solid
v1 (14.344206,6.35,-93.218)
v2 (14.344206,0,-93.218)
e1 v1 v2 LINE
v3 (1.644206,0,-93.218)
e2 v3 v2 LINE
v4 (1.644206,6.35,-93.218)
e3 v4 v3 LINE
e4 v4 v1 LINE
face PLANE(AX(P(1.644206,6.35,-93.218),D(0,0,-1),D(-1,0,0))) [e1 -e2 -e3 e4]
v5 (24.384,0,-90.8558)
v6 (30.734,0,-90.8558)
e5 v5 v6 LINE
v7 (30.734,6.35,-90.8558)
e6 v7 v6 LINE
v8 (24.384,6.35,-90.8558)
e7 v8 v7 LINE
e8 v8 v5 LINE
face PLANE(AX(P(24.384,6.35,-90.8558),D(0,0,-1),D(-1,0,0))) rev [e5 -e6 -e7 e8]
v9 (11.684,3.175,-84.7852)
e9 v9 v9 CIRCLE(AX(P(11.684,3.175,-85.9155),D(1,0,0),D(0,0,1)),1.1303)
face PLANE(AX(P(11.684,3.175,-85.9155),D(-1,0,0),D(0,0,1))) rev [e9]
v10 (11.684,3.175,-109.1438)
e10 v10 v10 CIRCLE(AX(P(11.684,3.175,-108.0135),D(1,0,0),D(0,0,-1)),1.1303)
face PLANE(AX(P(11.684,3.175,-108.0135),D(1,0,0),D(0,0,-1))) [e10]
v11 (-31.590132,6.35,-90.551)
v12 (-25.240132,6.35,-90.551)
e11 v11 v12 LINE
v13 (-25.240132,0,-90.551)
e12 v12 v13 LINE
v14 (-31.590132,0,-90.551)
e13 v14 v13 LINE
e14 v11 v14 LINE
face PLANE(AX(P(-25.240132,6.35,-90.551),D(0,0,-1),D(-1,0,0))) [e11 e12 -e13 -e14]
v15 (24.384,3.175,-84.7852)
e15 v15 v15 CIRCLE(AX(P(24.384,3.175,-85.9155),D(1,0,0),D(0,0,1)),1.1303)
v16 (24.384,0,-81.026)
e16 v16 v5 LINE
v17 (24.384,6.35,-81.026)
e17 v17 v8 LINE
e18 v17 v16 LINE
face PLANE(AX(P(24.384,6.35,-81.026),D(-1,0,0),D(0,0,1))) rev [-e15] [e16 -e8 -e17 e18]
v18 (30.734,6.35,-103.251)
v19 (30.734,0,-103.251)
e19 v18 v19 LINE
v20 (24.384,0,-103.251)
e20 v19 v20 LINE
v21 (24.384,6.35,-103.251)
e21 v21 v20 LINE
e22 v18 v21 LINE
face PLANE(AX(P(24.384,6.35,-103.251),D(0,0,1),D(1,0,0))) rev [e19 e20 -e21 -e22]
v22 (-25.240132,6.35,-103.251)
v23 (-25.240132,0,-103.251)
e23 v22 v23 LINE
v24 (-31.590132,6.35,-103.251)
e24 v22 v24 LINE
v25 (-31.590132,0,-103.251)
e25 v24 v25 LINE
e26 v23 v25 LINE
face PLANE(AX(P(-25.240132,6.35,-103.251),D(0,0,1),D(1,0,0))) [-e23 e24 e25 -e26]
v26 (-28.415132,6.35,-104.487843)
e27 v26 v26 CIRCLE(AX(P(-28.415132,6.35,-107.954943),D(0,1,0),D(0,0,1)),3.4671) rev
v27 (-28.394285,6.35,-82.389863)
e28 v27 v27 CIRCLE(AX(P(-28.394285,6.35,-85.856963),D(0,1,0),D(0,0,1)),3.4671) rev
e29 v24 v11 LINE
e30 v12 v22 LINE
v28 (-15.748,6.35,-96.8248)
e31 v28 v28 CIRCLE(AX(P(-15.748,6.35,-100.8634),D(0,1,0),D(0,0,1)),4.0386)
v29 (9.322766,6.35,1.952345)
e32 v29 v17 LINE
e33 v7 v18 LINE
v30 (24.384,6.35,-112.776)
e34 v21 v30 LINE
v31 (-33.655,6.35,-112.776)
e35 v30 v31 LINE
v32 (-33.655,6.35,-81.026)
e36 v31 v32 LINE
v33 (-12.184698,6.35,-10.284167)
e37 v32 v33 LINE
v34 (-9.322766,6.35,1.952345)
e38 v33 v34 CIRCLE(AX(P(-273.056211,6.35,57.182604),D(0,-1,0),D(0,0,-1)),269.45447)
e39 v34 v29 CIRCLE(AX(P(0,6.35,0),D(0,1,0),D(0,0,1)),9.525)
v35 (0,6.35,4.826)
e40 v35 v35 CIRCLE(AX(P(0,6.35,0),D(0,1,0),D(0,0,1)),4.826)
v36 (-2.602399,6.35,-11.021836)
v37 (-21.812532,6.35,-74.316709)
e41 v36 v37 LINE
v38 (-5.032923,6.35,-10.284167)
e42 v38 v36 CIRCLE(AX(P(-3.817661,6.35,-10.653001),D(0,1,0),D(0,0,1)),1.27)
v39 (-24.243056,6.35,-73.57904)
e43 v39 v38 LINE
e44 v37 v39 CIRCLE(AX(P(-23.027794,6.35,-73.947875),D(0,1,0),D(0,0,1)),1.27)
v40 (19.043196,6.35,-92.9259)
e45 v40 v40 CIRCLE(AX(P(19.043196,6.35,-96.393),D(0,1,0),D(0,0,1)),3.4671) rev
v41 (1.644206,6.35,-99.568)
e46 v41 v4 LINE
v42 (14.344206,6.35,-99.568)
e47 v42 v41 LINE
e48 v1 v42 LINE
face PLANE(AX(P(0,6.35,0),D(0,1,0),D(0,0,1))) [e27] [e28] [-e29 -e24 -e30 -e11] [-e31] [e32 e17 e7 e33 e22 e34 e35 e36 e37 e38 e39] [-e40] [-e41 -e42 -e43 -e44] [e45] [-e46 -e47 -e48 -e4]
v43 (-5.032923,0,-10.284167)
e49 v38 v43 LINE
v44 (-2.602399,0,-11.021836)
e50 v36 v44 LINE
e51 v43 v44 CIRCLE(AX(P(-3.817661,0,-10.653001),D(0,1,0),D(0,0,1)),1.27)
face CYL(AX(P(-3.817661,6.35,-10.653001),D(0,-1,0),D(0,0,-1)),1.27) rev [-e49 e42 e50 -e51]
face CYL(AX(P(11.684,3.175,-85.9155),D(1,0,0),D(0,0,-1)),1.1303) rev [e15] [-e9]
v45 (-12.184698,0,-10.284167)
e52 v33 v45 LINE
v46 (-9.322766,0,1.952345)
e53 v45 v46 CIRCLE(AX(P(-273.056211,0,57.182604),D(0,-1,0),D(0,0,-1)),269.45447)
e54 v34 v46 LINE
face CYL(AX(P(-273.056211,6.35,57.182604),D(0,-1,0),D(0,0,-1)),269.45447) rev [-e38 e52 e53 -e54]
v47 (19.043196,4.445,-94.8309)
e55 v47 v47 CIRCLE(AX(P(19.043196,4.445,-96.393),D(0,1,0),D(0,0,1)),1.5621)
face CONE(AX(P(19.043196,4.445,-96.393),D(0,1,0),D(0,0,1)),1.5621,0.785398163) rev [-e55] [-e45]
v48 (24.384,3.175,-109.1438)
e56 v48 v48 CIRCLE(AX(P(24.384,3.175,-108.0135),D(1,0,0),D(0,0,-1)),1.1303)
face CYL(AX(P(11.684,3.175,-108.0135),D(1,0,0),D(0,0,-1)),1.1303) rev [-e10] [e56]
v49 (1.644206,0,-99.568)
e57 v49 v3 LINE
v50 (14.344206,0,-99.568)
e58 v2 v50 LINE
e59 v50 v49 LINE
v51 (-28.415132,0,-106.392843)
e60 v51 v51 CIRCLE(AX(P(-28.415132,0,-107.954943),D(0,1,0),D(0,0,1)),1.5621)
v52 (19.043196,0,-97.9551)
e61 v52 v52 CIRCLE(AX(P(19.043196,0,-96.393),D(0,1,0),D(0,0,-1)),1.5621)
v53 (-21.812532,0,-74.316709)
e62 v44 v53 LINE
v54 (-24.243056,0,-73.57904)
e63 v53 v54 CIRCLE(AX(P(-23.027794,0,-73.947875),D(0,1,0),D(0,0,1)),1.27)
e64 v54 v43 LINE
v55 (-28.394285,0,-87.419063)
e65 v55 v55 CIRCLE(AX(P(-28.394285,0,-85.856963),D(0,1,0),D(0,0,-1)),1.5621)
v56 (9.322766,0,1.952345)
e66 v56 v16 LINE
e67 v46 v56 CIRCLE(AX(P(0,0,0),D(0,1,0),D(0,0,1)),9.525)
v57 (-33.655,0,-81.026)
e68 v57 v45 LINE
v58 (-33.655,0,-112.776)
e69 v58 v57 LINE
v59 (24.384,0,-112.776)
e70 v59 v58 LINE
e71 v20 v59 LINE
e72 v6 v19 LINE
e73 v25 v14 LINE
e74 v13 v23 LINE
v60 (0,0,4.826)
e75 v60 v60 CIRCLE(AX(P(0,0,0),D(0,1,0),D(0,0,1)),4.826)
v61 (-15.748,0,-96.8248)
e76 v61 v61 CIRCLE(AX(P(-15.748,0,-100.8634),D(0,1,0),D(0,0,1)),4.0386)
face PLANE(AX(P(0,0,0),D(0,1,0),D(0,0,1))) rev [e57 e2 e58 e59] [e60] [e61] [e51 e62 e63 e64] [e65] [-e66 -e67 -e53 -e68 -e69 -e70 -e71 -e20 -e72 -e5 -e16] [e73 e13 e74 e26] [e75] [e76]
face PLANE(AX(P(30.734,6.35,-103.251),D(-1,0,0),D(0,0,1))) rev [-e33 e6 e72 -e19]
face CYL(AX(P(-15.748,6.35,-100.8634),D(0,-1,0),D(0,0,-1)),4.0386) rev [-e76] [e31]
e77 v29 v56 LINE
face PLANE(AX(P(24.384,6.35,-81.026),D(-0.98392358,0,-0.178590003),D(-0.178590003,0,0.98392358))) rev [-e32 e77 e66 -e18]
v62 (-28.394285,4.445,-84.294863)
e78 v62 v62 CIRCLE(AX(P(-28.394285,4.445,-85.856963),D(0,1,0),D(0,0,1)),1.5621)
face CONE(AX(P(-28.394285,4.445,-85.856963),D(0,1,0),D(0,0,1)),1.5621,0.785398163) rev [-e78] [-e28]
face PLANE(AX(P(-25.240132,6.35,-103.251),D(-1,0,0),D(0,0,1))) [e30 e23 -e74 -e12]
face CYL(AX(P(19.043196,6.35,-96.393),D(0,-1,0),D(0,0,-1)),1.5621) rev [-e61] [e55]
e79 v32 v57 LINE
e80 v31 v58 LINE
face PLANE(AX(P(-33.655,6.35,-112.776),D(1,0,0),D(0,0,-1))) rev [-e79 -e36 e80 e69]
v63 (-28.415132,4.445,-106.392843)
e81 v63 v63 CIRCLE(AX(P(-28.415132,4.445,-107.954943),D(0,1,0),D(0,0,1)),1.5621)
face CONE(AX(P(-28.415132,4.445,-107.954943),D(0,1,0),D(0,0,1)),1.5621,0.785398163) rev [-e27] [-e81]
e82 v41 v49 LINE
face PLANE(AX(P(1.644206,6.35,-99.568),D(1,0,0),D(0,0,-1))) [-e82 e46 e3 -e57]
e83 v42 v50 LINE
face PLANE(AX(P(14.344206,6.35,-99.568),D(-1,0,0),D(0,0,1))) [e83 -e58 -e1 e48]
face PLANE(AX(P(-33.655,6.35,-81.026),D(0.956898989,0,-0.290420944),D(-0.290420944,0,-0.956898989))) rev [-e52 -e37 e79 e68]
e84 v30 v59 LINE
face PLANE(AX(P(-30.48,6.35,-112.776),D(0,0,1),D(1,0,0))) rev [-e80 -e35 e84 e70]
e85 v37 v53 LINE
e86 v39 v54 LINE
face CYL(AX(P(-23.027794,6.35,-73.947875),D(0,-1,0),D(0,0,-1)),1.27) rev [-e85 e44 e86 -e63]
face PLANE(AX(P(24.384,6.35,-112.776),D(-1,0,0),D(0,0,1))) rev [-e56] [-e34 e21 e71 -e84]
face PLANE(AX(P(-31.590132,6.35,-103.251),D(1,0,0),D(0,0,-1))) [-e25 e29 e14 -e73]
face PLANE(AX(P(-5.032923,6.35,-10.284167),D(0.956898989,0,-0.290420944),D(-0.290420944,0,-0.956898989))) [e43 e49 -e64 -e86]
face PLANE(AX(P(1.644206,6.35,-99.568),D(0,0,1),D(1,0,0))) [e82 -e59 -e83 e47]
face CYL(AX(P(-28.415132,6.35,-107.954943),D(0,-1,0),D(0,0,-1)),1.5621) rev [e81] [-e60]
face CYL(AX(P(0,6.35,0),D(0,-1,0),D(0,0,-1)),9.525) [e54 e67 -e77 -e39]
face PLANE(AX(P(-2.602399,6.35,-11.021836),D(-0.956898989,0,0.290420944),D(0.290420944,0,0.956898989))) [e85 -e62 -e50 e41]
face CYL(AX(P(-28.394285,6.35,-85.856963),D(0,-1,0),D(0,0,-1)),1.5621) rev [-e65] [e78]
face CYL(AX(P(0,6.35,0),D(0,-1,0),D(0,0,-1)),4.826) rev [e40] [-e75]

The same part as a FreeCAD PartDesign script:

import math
import FreeCAD as App
import Part
import Sketcher
Q = App.Units.Quantity


def edges_at(feature, points):
    """Names of the edges that pass closest to the given points."""
    edges = feature.Shape.Edges
    near = lambda p: min(range(len(edges)), key=lambda i: edges[i].distToShape(Part.Vertex(*p))[0])
    return sorted({f"Edge{near(p) + 1}" for p in points})

doc = App.newDocument("Part")
body = doc.addObject("PartDesign::Body", "Body")

# Sketch on XZ plane
sketch1 = doc.addObject("Sketcher::SketchObject", "Sketch")
body.addObject(sketch1)
sketch1.AttachmentSupport = (doc.XZ_Plane, [""])
sketch1.MapMode = "FlatFace"
sketch1.addGeometry([
    Part.LineSegment(App.Vector(9.3, 2, 0), App.Vector(24.4, -81, 0)),  # 0
    Part.LineSegment(App.Vector(24.4, -81, 0), App.Vector(24.4, -90.9, 0)),  # 1
    Part.LineSegment(App.Vector(24.4, -90.9, 0), App.Vector(30.7, -90.9, 0)),  # 2
    Part.LineSegment(App.Vector(30.7, -90.9, 0), App.Vector(30.7, -103.3, 0)),  # 3
    Part.LineSegment(App.Vector(30.7, -103.3, 0), App.Vector(24.4, -103.3, 0)),  # 4
    Part.LineSegment(App.Vector(24.4, -103.3, 0), App.Vector(24.4, -112.8, 0)),  # 5
    Part.LineSegment(App.Vector(24.4, -112.8, 0), App.Vector(-33.7, -112.8, 0)),  # 6
    Part.LineSegment(App.Vector(-33.7, -112.8, 0), App.Vector(-33.7, -81, 0)),  # 7
    Part.LineSegment(App.Vector(-33.7, -81, 0), App.Vector(-12.2, -10.3, 0)),  # 8
    Part.ArcOfCircle(Part.Circle(App.Vector(-273.1, 57.2, 0), App.Vector(0, 0, 1), 269.5), math.radians(-14.5), math.radians(-11.83)),  # 9
    Part.ArcOfCircle(Part.Circle(App.Vector(0, 0, 0), App.Vector(0, 0, 1), 9.5), math.radians(12), math.radians(168)),  # 10
    Part.Circle(App.Vector(0, 0, 0), App.Vector(0, 0, 1), 4.8),  # 11
    Part.LineSegment(App.Vector(-5, -10.3, 0), App.Vector(-24.2, -73.6, 0)),  # 12
    Part.ArcOfCircle(Part.Circle(App.Vector(-23, -73.9, 0), App.Vector(0, 0, 1), 1.3), math.radians(163), math.radians(343)),  # 13
    Part.LineSegment(App.Vector(-21.8, -74.3, 0), App.Vector(-2.6, -11, 0)),  # 14
    Part.ArcOfCircle(Part.Circle(App.Vector(-3.8, -10.7, 0), App.Vector(0, 0, 1), 1.3), math.radians(-17), math.radians(163)),  # 15
    Part.Circle(App.Vector(19, -96.4, 0), App.Vector(0, 0, 1), 1.6),  # 16
    Part.LineSegment(App.Vector(1.6, -93.2, 0), App.Vector(1.6, -99.6, 0)),  # 17
    Part.LineSegment(App.Vector(1.6, -99.6, 0), App.Vector(14.3, -99.6, 0)),  # 18
    Part.LineSegment(App.Vector(14.3, -99.6, 0), App.Vector(14.3, -93.2, 0)),  # 19
    Part.LineSegment(App.Vector(14.3, -93.2, 0), App.Vector(1.6, -93.2, 0)),  # 20
    Part.Circle(App.Vector(-15.7, -100.9, 0), App.Vector(0, 0, 1), 4),  # 21
    Part.Circle(App.Vector(-28.4, -85.9, 0), App.Vector(0, 0, 1), 1.6),  # 22
    Part.LineSegment(App.Vector(-31.6, -90.6, 0), App.Vector(-31.6, -103.3, 0)),  # 23
    Part.LineSegment(App.Vector(-31.6, -103.3, 0), App.Vector(-25.2, -103.3, 0)),  # 24
    Part.LineSegment(App.Vector(-25.2, -103.3, 0), App.Vector(-25.2, -90.6, 0)),  # 25
    Part.LineSegment(App.Vector(-25.2, -90.6, 0), App.Vector(-31.6, -90.6, 0)),  # 26
    Part.Circle(App.Vector(-28.4, -108, 0), App.Vector(0, 0, 1), 1.6),  # 27
], False)
sketch1.addConstraint([
    Sketcher.Constraint("Coincident", 0, 2, 1, 1),
    Sketcher.Constraint("Coincident", 1, 2, 2, 1),
    Sketcher.Constraint("Coincident", 2, 2, 3, 1),
    Sketcher.Constraint("Coincident", 3, 2, 4, 1),
    Sketcher.Constraint("Coincident", 4, 2, 5, 1),
    Sketcher.Constraint("Coincident", 5, 2, 6, 1),
    Sketcher.Constraint("Coincident", 6, 2, 7, 1),
    Sketcher.Constraint("Coincident", 7, 2, 8, 1),
    Sketcher.Constraint("Coincident", 8, 2, 9, 1),
    Sketcher.Constraint("Tangent", 9, 2, 10, 2),
    Sketcher.Constraint("Coincident", 10, 1, 0, 1),
    Sketcher.Constraint("Tangent", 12, 2, 13, 1),
    Sketcher.Constraint("Tangent", 13, 2, 14, 1),
    Sketcher.Constraint("Tangent", 14, 2, 15, 1),
    Sketcher.Constraint("Tangent", 15, 2, 12, 1),
    Sketcher.Constraint("Coincident", 17, 2, 18, 1),
    Sketcher.Constraint("Coincident", 18, 2, 19, 1),
    Sketcher.Constraint("Coincident", 19, 2, 20, 1),
    Sketcher.Constraint("Coincident", 20, 2, 17, 1),
    Sketcher.Constraint("Coincident", 23, 2, 24, 1),
    Sketcher.Constraint("Coincident", 24, 2, 25, 1),
    Sketcher.Constraint("Coincident", 25, 2, 26, 1),
    Sketcher.Constraint("Coincident", 26, 2, 23, 1),
    Sketcher.Constraint("Vertical", 1),
    Sketcher.Constraint("Horizontal", 2),
    Sketcher.Constraint("Vertical", 3),
    Sketcher.Constraint("Horizontal", 4),
    Sketcher.Constraint("Vertical", 5),
    Sketcher.Constraint("Horizontal", 6),
    Sketcher.Constraint("Vertical", 7),
    Sketcher.Constraint("Vertical", 17),
    Sketcher.Constraint("Horizontal", 18),
    Sketcher.Constraint("Vertical", 19),
    Sketcher.Constraint("Horizontal", 20),
    Sketcher.Constraint("Vertical", 23),
    Sketcher.Constraint("Horizontal", 24),
    Sketcher.Constraint("Vertical", 25),
    Sketcher.Constraint("Horizontal", 26),
    Sketcher.Constraint("Coincident", 10, 3, -1, 1),
    Sketcher.Constraint("Coincident", 11, 3, -1, 1),
    Sketcher.Constraint("Equal", 13, 15),
    Sketcher.Constraint("Equal", 16, 22),
    Sketcher.Constraint("Equal", 22, 27),
    Sketcher.Constraint("Parallel", 8, 12),
    Sketcher.Constraint("Horizontal", 0, 2, 7, 2),
    Sketcher.Constraint("Horizontal", 9, 2, 10, 1),
    Sketcher.Constraint("Horizontal", 8, 2, 15, 2),
    Sketcher.Constraint("Horizontal", 4, 2, 23, 2),
    Sketcher.Constraint("Vertical", 1, 2, 4, 2),
    Sketcher.Constraint("Equal", 4, 24),
    Sketcher.Constraint("Equal", 26, 17),
    Sketcher.Constraint("Equal", 20, 23),
    Sketcher.Constraint("Diameter", 11, Q("0.38 in")),
    Sketcher.Constraint("Radius", 13, Q("0.05 in")),
    Sketcher.Constraint("Diameter", 16, Q("0.123 in")),
    Sketcher.Constraint("Diameter", 21, Q("0.318 in")),
    Sketcher.Constraint("DistanceX", 18, 1, 18, 2, Q("0.5 in")),
    Sketcher.Constraint("Radius", 10, Q("0.375 in")),
    Sketcher.Constraint("DistanceX", 2, 1, 2, 2, Q("0.25 in")),
    Sketcher.Constraint("DistanceY", 7, 1, 7, 2, Q("1.25 in")),
    Sketcher.Constraint("DistanceX", 6, 2, 6, 1, Q("2.285 in")),
    Sketcher.Constraint("DistanceY", 1, 2, 1, 1, Q("0.387 in")),
    Sketcher.Constraint("DistanceY", 3, 2, 3, 1, Q("0.488 in")),
    Sketcher.Constraint("DistanceX", 21, 3, -1, 1, Q("0.62 in")),
    Sketcher.Constraint("DistanceX", -1, 1, 0, 2, Q("0.96 in")),
    Sketcher.Constraint("DistanceY", 0, 2, -1, 1, Q("3.19 in")),
    Sketcher.Constraint("DistanceY", 17, 2, -1, 1, Q("3.92 in")),
    Sketcher.Constraint("DistanceY", 3, 2, 16, 3, Q("0.27 in")),
    Sketcher.Constraint("DistanceY", 21, 3, -1, 1, Q("3.971 in")),
    Sketcher.Constraint("Radius", 9, Q("269.454471 mm")),
    Sketcher.Constraint("DistanceX", 23, 2, 27, 3, Q("0.125 in")),
    Sketcher.Constraint("DistanceX", 27, 3, 13, 3, Q("0.2120999 in")),
    Sketcher.Constraint("DistanceY", 15, 3, -1, 1, Q("10.653001 mm")),
    Sketcher.Constraint("DistanceX", 8, 2, -1, 1, Q("12.184698 mm")),
    Sketcher.Constraint("DistanceX", 14, 2, -1, 1, Q("2.602399 mm")),
    Sketcher.Constraint("DistanceY", 12, 2, -1, 1, Q("73.57904 mm")),
    Sketcher.Constraint("DistanceX", 13, 3, 16, 3, Q("42.07099 mm")),
    Sketcher.Constraint("DistanceX", 22, 3, 13, 3, Q("5.366491 mm")),
    Sketcher.Constraint("DistanceY", 22, 3, 13, 3, Q("11.909088 mm")),
    Sketcher.Constraint("DistanceY", 27, 3, 22, 3, Q("22.09798 mm")),
    Sketcher.Constraint("DistanceX", 17, 2, 16, 3, Q("17.39899 mm")),
])
pad1 = doc.addObject("PartDesign::Pad", "Pad")
body.addObject(pad1)
pad1.Profile = sketch1
pad1.Length = Q("0.25 in")
pad1.Reversed = True

# Sketch on YZ plane
sketch2 = doc.addObject("Sketcher::SketchObject", "Sketch001")
body.addObject(sketch2)
sketch2.AttachmentSupport = (doc.YZ_Plane, [""])
sketch2.MapMode = "FlatFace"
sketch2.AttachmentOffset = App.Placement(App.Vector(0, 0, 0.96 * 25.4), App.Rotation())
sketch2.addGeometry([
    Part.Circle(App.Vector(3.2, -108, 0), App.Vector(0, 0, 1), 1.1),
    Part.Circle(App.Vector(3.2, -85.9, 0), App.Vector(0, 0, 1), 1.1),
], False)
sketch2.addConstraint([
    Sketcher.Constraint("Equal", 0, 1),
    Sketcher.Constraint("Vertical", 0, 3, 1, 3),
    Sketcher.Constraint("Diameter", 0, Q("0.089 in")),
    Sketcher.Constraint("DistanceY", 0, 3, 1, 3, Q("0.87 in")),
    Sketcher.Constraint("DistanceX", -1, 1, 0, 3, Q("0.125 in")),
    Sketcher.Constraint("DistanceY", 0, 3, -1, 1, Q("4.2525 in")),
])
pocket1 = doc.addObject("PartDesign::Pocket", "Pocket")
body.addObject(pocket1)
pocket1.Profile = sketch2
pocket1.Length = Q("0.5 in")
doc.recompute()

chamfer = doc.addObject("PartDesign::Chamfer", "Chamfer")
body.addObject(chamfer)
chamfer.Base = (pocket1, edges_at(pocket1, [(17.481, 6.35, -96.393), (-29.977, 6.35, -107.955), (-29.956, 6.35, -85.857)]))
chamfer.Size = Q("0.075 in")

doc.recompute()
